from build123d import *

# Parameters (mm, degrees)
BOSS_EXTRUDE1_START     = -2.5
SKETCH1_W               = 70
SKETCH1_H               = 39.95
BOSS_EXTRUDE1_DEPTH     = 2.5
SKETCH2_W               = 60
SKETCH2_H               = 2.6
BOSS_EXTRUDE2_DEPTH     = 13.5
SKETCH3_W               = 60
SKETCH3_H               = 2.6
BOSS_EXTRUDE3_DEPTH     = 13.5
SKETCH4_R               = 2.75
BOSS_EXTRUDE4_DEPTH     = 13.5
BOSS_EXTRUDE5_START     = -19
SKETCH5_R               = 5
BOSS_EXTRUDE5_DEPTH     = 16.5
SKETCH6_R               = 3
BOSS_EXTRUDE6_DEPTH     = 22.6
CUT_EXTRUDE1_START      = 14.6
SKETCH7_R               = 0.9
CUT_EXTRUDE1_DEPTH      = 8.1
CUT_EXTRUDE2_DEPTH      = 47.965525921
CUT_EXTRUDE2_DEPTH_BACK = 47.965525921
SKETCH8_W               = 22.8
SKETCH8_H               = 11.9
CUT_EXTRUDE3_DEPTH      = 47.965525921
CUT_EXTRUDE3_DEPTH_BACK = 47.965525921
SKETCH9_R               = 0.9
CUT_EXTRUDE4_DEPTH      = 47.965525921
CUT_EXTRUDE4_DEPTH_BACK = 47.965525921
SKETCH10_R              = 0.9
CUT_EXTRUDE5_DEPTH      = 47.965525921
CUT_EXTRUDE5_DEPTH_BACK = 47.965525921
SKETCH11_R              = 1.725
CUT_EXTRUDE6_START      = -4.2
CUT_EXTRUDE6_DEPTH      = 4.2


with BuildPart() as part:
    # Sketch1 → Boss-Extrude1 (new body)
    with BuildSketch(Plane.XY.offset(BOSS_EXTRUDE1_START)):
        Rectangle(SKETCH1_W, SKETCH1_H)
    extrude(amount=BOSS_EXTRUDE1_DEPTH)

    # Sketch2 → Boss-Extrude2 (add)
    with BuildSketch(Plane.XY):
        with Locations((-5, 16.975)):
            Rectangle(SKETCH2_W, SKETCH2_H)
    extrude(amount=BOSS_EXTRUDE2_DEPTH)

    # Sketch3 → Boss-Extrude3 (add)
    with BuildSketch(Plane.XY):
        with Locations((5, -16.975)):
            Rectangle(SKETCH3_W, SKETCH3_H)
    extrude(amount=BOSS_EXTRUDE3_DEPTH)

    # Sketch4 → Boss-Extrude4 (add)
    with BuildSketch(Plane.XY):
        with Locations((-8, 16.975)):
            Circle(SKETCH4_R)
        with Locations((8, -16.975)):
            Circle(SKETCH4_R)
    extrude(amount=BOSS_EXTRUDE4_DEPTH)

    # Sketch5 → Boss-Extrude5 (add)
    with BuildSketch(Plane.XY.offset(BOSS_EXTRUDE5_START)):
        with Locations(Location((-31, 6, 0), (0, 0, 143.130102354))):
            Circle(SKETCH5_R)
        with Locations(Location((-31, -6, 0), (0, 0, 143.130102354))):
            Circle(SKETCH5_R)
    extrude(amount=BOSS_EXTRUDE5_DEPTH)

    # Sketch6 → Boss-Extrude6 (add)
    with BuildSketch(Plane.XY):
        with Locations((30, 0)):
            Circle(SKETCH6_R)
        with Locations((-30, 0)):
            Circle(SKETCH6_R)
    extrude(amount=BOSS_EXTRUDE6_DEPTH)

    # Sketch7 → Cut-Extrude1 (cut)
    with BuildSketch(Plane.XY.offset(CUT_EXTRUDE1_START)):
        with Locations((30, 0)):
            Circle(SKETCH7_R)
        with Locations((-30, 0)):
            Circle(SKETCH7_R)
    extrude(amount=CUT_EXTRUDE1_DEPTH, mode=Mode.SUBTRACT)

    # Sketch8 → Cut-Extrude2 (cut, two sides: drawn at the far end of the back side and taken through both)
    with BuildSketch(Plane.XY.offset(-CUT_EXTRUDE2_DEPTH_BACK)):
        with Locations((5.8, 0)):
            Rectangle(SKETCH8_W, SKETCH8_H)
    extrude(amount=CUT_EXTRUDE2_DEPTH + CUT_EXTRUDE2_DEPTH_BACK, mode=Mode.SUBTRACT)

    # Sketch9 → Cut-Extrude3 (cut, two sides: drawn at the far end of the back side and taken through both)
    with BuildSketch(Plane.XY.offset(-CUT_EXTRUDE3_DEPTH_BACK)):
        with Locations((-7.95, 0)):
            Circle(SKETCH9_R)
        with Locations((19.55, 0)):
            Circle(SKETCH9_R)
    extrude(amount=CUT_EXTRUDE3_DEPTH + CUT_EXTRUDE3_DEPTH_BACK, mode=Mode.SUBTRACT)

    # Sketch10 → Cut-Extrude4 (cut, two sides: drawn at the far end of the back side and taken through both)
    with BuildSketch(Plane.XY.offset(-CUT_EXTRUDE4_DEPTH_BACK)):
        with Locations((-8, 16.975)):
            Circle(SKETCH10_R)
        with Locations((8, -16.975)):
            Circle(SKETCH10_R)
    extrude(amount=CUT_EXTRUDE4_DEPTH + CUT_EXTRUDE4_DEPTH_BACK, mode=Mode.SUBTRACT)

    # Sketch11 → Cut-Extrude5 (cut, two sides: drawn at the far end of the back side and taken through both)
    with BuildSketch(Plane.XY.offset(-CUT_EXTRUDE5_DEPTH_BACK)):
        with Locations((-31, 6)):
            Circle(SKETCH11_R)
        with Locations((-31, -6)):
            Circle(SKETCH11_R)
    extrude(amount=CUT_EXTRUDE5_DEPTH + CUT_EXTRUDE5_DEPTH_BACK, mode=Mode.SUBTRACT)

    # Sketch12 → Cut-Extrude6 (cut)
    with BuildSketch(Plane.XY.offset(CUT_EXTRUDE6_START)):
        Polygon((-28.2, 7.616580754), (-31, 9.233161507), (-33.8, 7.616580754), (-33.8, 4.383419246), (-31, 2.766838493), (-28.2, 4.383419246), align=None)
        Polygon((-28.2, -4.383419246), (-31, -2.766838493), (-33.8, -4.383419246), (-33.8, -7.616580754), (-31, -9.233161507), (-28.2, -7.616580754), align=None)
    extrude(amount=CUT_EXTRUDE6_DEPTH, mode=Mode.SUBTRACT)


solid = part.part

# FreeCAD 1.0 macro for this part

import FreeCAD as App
import Part
import Sketcher
Q = App.Units.Quantity

doc = App.newDocument("Part")
params = doc.addObject("Spreadsheet::Sheet", "Params")
for row, (alias, value) in enumerate([
    ("sketch1_width", "70 mm"),
    ("sketch1_height", "39.95 mm"),
    ("pad1_length", "2.5 mm"),
    ("sketch2_width", "60 mm"),
    ("sketch2_height", "2.6 mm"),
    ("pad2_length", "13.5 mm"),
    ("sketch3_width", "60 mm"),
    ("sketch3_height", "2.6 mm"),
    ("pad3_length", "13.5 mm"),
    ("sketch4_diameter", "5.5 mm"),
    ("pad4_length", "13.5 mm"),
    ("sketch5_diameter", "10 mm"),
    ("pad5_length", "16.5 mm"),
    ("sketch6_diameter", "6 mm"),
    ("pad6_length", "22.6 mm"),
    ("sketch7_diameter", "1.8 mm"),
    ("pocket1_length", "8.1 mm"),
    ("sketch8_width", "22.8 mm"),
    ("sketch8_height", "11.9 mm"),
    ("sketch9_diameter", "1.8 mm"),
    ("sketch10_diameter", "1.8 mm"),
    ("sketch11_diameter", "3.45 mm"),
    ("pocket6_length", "4.2 mm"),
], start=1):
    params.set(f"A{row}", alias)
    params.set(f"B{row}", "=" + value)
    params.setAlias(f"B{row}", alias)

body = doc.addObject("PartDesign::Body", "Body")

# Sketch on XY plane
sketch1 = doc.addObject("Sketcher::SketchObject", "Sketch")
body.addObject(sketch1)
sketch1.AttachmentSupport = (doc.XY_Plane, [""])
sketch1.MapMode = "FlatFace"
sketch1.AttachmentOffset = App.Placement(App.Vector(0, 0, -2.5), App.Rotation())
sketch1.addGeometry([
    Part.LineSegment(App.Vector(-35, 20, 0), App.Vector(-35, -20, 0)),
    Part.LineSegment(App.Vector(-35, -20, 0), App.Vector(35, -20, 0)),
    Part.LineSegment(App.Vector(35, -20, 0), App.Vector(35, 20, 0)),
    Part.LineSegment(App.Vector(35, 20, 0), App.Vector(-35, 20, 0)),
], False)
sketch1.addConstraint([
    Sketcher.Constraint("Coincident", 0, 2, 1, 1),
    Sketcher.Constraint("Coincident", 1, 2, 2, 1),
    Sketcher.Constraint("Coincident", 2, 2, 3, 1),
    Sketcher.Constraint("Coincident", 3, 2, 0, 1),
    Sketcher.Constraint("Vertical", 0),
    Sketcher.Constraint("Horizontal", 1),
    Sketcher.Constraint("Vertical", 2),
    Sketcher.Constraint("Horizontal", 3),
    Sketcher.Constraint("Symmetric", 0, 2, 2, 2, -1, 1),
    Sketcher.Constraint("DistanceX", 1, 1, 1, 2, Q("70 mm")),
    Sketcher.Constraint("DistanceY", 0, 2, 0, 1, Q("39.95 mm")),
])
sketch1.setExpression("Constraints[9]", "Params.sketch1_width")
sketch1.setExpression("Constraints[10]", "Params.sketch1_height")
pad1 = doc.addObject("PartDesign::Pad", "Pad")
body.addObject(pad1)
pad1.Profile = sketch1
pad1.setExpression("Length", "Params.pad1_length")

# Sketch on XY plane
sketch2 = doc.addObject("Sketcher::SketchObject", "Sketch001")
body.addObject(sketch2)
sketch2.AttachmentSupport = (doc.XY_Plane, [""])
sketch2.MapMode = "FlatFace"
sketch2.addGeometry([
    Part.LineSegment(App.Vector(-35, 18.3, 0), App.Vector(-35, 15.7, 0)),
    Part.LineSegment(App.Vector(-35, 15.7, 0), App.Vector(25, 15.7, 0)),
    Part.LineSegment(App.Vector(25, 15.7, 0), App.Vector(25, 18.3, 0)),
    Part.LineSegment(App.Vector(25, 18.3, 0), App.Vector(-35, 18.3, 0)),
], False)
sketch2.addConstraint([
    Sketcher.Constraint("Coincident", 0, 2, 1, 1),
    Sketcher.Constraint("Coincident", 1, 2, 2, 1),
    Sketcher.Constraint("Coincident", 2, 2, 3, 1),
    Sketcher.Constraint("Coincident", 3, 2, 0, 1),
    Sketcher.Constraint("Vertical", 0),
    Sketcher.Constraint("Horizontal", 1),
    Sketcher.Constraint("Vertical", 2),
    Sketcher.Constraint("Horizontal", 3),
    Sketcher.Constraint("DistanceX", 1, 1, 1, 2, Q("60 mm")),
    Sketcher.Constraint("DistanceY", 0, 2, 0, 1, Q("2.6 mm")),
    Sketcher.Constraint("DistanceX", 0, 2, -1, 1, Q("35 mm")),
    Sketcher.Constraint("DistanceY", -1, 1, 0, 2, Q("15.675 mm")),
])
sketch2.setExpression("Constraints[8]", "Params.sketch2_width")
sketch2.setExpression("Constraints[9]", "Params.sketch2_height")
pad2 = doc.addObject("PartDesign::Pad", "Pad001")
body.addObject(pad2)
pad2.Profile = sketch2
pad2.setExpression("Length", "Params.pad2_length")

# Sketch on XY plane
sketch3 = doc.addObject("Sketcher::SketchObject", "Sketch002")
body.addObject(sketch3)
sketch3.AttachmentSupport = (doc.XY_Plane, [""])
sketch3.MapMode = "FlatFace"
sketch3.addGeometry([
    Part.LineSegment(App.Vector(-25, -15.7, 0), App.Vector(-25, -18.3, 0)),
    Part.LineSegment(App.Vector(-25, -18.3, 0), App.Vector(35, -18.3, 0)),
    Part.LineSegment(App.Vector(35, -18.3, 0), App.Vector(35, -15.7, 0)),
    Part.LineSegment(App.Vector(35, -15.7, 0), App.Vector(-25, -15.7, 0)),
], False)
sketch3.addConstraint([
    Sketcher.Constraint("Coincident", 0, 2, 1, 1),
    Sketcher.Constraint("Coincident", 1, 2, 2, 1),
    Sketcher.Constraint("Coincident", 2, 2, 3, 1),
    Sketcher.Constraint("Coincident", 3, 2, 0, 1),
    Sketcher.Constraint("Vertical", 0),
    Sketcher.Constraint("Horizontal", 1),
    Sketcher.Constraint("Vertical", 2),
    Sketcher.Constraint("Horizontal", 3),
    Sketcher.Constraint("DistanceX", 1, 1, 1, 2, Q("60 mm")),
    Sketcher.Constraint("DistanceY", 0, 2, 0, 1, Q("2.6 mm")),
    Sketcher.Constraint("DistanceX", 0, 2, -1, 1, Q("25 mm")),
    Sketcher.Constraint("DistanceY", 0, 2, -1, 1, Q("18.275 mm")),
])
sketch3.setExpression("Constraints[8]", "Params.sketch3_width")
sketch3.setExpression("Constraints[9]", "Params.sketch3_height")
pad3 = doc.addObject("PartDesign::Pad", "Pad002")
body.addObject(pad3)
pad3.Profile = sketch3
pad3.setExpression("Length", "Params.pad3_length")

# Sketch on XY plane
sketch4 = doc.addObject("Sketcher::SketchObject", "Sketch003")
body.addObject(sketch4)
sketch4.AttachmentSupport = (doc.XY_Plane, [""])
sketch4.MapMode = "FlatFace"
sketch4.addGeometry([
    Part.Circle(App.Vector(-8, 17, 0), App.Vector(0, 0, 1), 2.8),
    Part.Circle(App.Vector(8, -17, 0), App.Vector(0, 0, 1), 2.8),
], False)
sketch4.addConstraint([
    Sketcher.Constraint("Equal", 0, 1),
    Sketcher.Constraint("Symmetric", 0, 3, 1, 3, -1, 1),
    Sketcher.Constraint("Diameter", 0, Q("5.5 mm")),
    Sketcher.Constraint("DistanceX", 0, 3, -1, 1, Q("8 mm")),
    Sketcher.Constraint("DistanceY", 1, 3, 0, 3, Q("33.95 mm")),
])
sketch4.setExpression("Constraints[2]", "Params.sketch4_diameter")
pad4 = doc.addObject("PartDesign::Pad", "Pad003")
body.addObject(pad4)
pad4.Profile = sketch4
pad4.setExpression("Length", "Params.pad4_length")

# Sketch on XY plane
sketch5 = doc.addObject("Sketcher::SketchObject", "Sketch004")
body.addObject(sketch5)
sketch5.AttachmentSupport = (doc.XY_Plane, [""])
sketch5.MapMode = "FlatFace"
sketch5.AttachmentOffset = App.Placement(App.Vector(0, 0, -19), App.Rotation())
sketch5.addGeometry([
    Part.Circle(App.Vector(-31, 6, 0), App.Vector(0, 0, 1), 5),
    Part.Circle(App.Vector(-31, -6, 0), App.Vector(0, 0, 1), 5),
], False)
sketch5.addConstraint([
    Sketcher.Constraint("Equal", 0, 1),
    Sketcher.Constraint("Symmetric", 0, 3, 1, 3, -1),
    Sketcher.Constraint("Diameter", 0, Q("10 mm")),
    Sketcher.Constraint("DistanceX", 0, 3, -1, 1, Q("31 mm")),
    Sketcher.Constraint("DistanceY", -1, 1, 0, 3, Q("6 mm")),
])
sketch5.setExpression("Constraints[2]", "Params.sketch5_diameter")
pad5 = doc.addObject("PartDesign::Pad", "Pad004")
body.addObject(pad5)
pad5.Profile = sketch5
pad5.setExpression("Length", "Params.pad5_length")

# Sketch on XY plane
sketch6 = doc.addObject("Sketcher::SketchObject", "Sketch005")
body.addObject(sketch6)
sketch6.AttachmentSupport = (doc.XY_Plane, [""])
sketch6.MapMode = "FlatFace"
sketch6.addGeometry([
    Part.Circle(App.Vector(30, 0, 0), App.Vector(0, 0, 1), 3),
    Part.Circle(App.Vector(-30, 0, 0), App.Vector(0, 0, 1), 3),
], False)
sketch6.addConstraint([
    Sketcher.Constraint("Equal", 0, 1),
    Sketcher.Constraint("Symmetric", 0, 3, 1, 3, -1, 1),
    Sketcher.Constraint("PointOnObject", 0, 3, -1),
    Sketcher.Constraint("Diameter", 0, Q("6 mm")),
    Sketcher.Constraint("DistanceX", -1, 1, 0, 3, Q("30 mm")),
])
sketch6.setExpression("Constraints[3]", "Params.sketch6_diameter")
pad6 = doc.addObject("PartDesign::Pad", "Pad005")
body.addObject(pad6)
pad6.Profile = sketch6
pad6.setExpression("Length", "Params.pad6_length")

# Sketch on XY plane
sketch7 = doc.addObject("Sketcher::SketchObject", "Sketch006")
body.addObject(sketch7)
sketch7.AttachmentSupport = (doc.XY_Plane, [""])
sketch7.MapMode = "FlatFace"
sketch7.AttachmentOffset = App.Placement(App.Vector(0, 0, 14.6), App.Rotation())
sketch7.addGeometry([
    Part.Circle(App.Vector(30, 0, 0), App.Vector(0, 0, 1), 0.9),
    Part.Circle(App.Vector(-30, 0, 0), App.Vector(0, 0, 1), 0.9),
], False)
sketch7.addConstraint([
    Sketcher.Constraint("Equal", 0, 1),
    Sketcher.Constraint("Symmetric", 0, 3, 1, 3, -1, 1),
    Sketcher.Constraint("PointOnObject", 0, 3, -1),
    Sketcher.Constraint("Diameter", 0, Q("1.8 mm")),
    Sketcher.Constraint("DistanceX", -1, 1, 0, 3, Q("30 mm")),
])
sketch7.setExpression("Constraints[3]", "Params.sketch7_diameter")
pocket1 = doc.addObject("PartDesign::Pocket", "Pocket")
body.addObject(pocket1)
pocket1.Profile = sketch7
pocket1.setExpression("Length", "Params.pocket1_length")
pocket1.Reversed = True

# Sketch on XY plane
sketch8 = doc.addObject("Sketcher::SketchObject", "Sketch007")
body.addObject(sketch8)
sketch8.AttachmentSupport = (doc.XY_Plane, [""])
sketch8.MapMode = "FlatFace"
sketch8.addGeometry([
    Part.LineSegment(App.Vector(-6, 6, 0), App.Vector(-6, -6, 0)),
    Part.LineSegment(App.Vector(-6, -6, 0), App.Vector(17, -6, 0)),
    Part.LineSegment(App.Vector(17, -6, 0), App.Vector(17, 6, 0)),
    Part.LineSegment(App.Vector(17, 6, 0), App.Vector(-6, 6, 0)),
], False)
sketch8.addConstraint([
    Sketcher.Constraint("Coincident", 0, 2, 1, 1),
    Sketcher.Constraint("Coincident", 1, 2, 2, 1),
    Sketcher.Constraint("Coincident", 2, 2, 3, 1),
    Sketcher.Constraint("Coincident", 3, 2, 0, 1),
    Sketcher.Constraint("Vertical", 0),
    Sketcher.Constraint("Horizontal", 1),
    Sketcher.Constraint("Vertical", 2),
    Sketcher.Constraint("Horizontal", 3),
    Sketcher.Constraint("DistanceX", 1, 1, 1, 2, Q("22.8 mm")),
    Sketcher.Constraint("DistanceY", 0, 2, 0, 1, Q("11.9 mm")),
    Sketcher.Constraint("DistanceX", 0, 2, -1, 1, Q("5.6 mm")),
    Sketcher.Constraint("DistanceY", 0, 2, -1, 1, Q("5.95 mm")),
])
sketch8.setExpression("Constraints[8]", "Params.sketch8_width")
sketch8.setExpression("Constraints[9]", "Params.sketch8_height")
pocket2 = doc.addObject("PartDesign::Pocket", "Pocket001")
body.addObject(pocket2)
pocket2.Profile = sketch8
pocket2.Type = "ThroughAll"
pocket2.Midplane = True

# Sketch on XY plane
sketch9 = doc.addObject("Sketcher::SketchObject", "Sketch008")
body.addObject(sketch9)
sketch9.AttachmentSupport = (doc.XY_Plane, [""])
sketch9.MapMode = "FlatFace"
sketch9.addGeometry([
    Part.Circle(App.Vector(-8, 0, 0), App.Vector(0, 0, 1), 0.9),
    Part.Circle(App.Vector(19.6, 0, 0), App.Vector(0, 0, 1), 0.9),
], False)
sketch9.addConstraint([
    Sketcher.Constraint("Equal", 0, 1),
    Sketcher.Constraint("PointOnObject", 0, 3, -1),
    Sketcher.Constraint("PointOnObject", 1, 3, -1),
    Sketcher.Constraint("Diameter", 0, Q("1.8 mm")),
    Sketcher.Constraint("DistanceX", 0, 3, 1, 3, Q("27.5 mm")),
    Sketcher.Constraint("DistanceX", 0, 3, -1, 1, Q("7.95 mm")),
])
sketch9.setExpression("Constraints[3]", "Params.sketch9_diameter")
pocket3 = doc.addObject("PartDesign::Pocket", "Pocket002")
body.addObject(pocket3)
pocket3.Profile = sketch9
pocket3.Type = "ThroughAll"
pocket3.Midplane = True

# Sketch on XY plane
sketch10 = doc.addObject("Sketcher::SketchObject", "Sketch009")
body.addObject(sketch10)
sketch10.AttachmentSupport = (doc.XY_Plane, [""])
sketch10.MapMode = "FlatFace"
sketch10.addGeometry([
    Part.Circle(App.Vector(-8, 17, 0), App.Vector(0, 0, 1), 0.9),
    Part.Circle(App.Vector(8, -17, 0), App.Vector(0, 0, 1), 0.9),
], False)
sketch10.addConstraint([
    Sketcher.Constraint("Equal", 0, 1),
    Sketcher.Constraint("Symmetric", 0, 3, 1, 3, -1, 1),
    Sketcher.Constraint("Diameter", 0, Q("1.8 mm")),
    Sketcher.Constraint("DistanceX", 0, 3, -1, 1, Q("8 mm")),
    Sketcher.Constraint("DistanceY", 1, 3, 0, 3, Q("33.95 mm")),
])
sketch10.setExpression("Constraints[2]", "Params.sketch10_diameter")
pocket4 = doc.addObject("PartDesign::Pocket", "Pocket003")
body.addObject(pocket4)
pocket4.Profile = sketch10
pocket4.Type = "ThroughAll"
pocket4.Midplane = True

# Sketch on XY plane
sketch11 = doc.addObject("Sketcher::SketchObject", "Sketch010")
body.addObject(sketch11)
sketch11.AttachmentSupport = (doc.XY_Plane, [""])
sketch11.MapMode = "FlatFace"
sketch11.addGeometry([
    Part.Circle(App.Vector(-31, 6, 0), App.Vector(0, 0, 1), 1.7),
    Part.Circle(App.Vector(-31, -6, 0), App.Vector(0, 0, 1), 1.7),
], False)
sketch11.addConstraint([
    Sketcher.Constraint("Equal", 0, 1),
    Sketcher.Constraint("Symmetric", 0, 3, 1, 3, -1),
    Sketcher.Constraint("Diameter", 0, Q("3.45 mm")),
    Sketcher.Constraint("DistanceX", 0, 3, -1, 1, Q("31 mm")),
    Sketcher.Constraint("DistanceY", -1, 1, 0, 3, Q("6 mm")),
])
sketch11.setExpression("Constraints[2]", "Params.sketch11_diameter")
pocket5 = doc.addObject("PartDesign::Pocket", "Pocket004")
body.addObject(pocket5)
pocket5.Profile = sketch11
pocket5.Type = "ThroughAll"
pocket5.Midplane = True

# Sketch on XY plane
sketch12 = doc.addObject("Sketcher::SketchObject", "Sketch011")
body.addObject(sketch12)
sketch12.AttachmentSupport = (doc.XY_Plane, [""])
sketch12.MapMode = "FlatFace"
sketch12.AttachmentOffset = App.Placement(App.Vector(0, 0, -4.2), App.Rotation())
sketch12.addGeometry([
    Part.LineSegment(App.Vector(-28.2, 7.6, 0), App.Vector(-31, 9.2, 0)),  # 0
    Part.LineSegment(App.Vector(-31, 9.2, 0), App.Vector(-33.8, 7.6, 0)),  # 1
    Part.LineSegment(App.Vector(-33.8, 7.6, 0), App.Vector(-33.8, 4.4, 0)),  # 2
    Part.LineSegment(App.Vector(-33.8, 4.4, 0), App.Vector(-31, 2.8, 0)),  # 3
    Part.LineSegment(App.Vector(-31, 2.8, 0), App.Vector(-28.2, 4.4, 0)),  # 4
    Part.LineSegment(App.Vector(-28.2, 4.4, 0), App.Vector(-28.2, 7.6, 0)),  # 5
    Part.LineSegment(App.Vector(-28.2, -4.4, 0), App.Vector(-31, -2.8, 0)),  # 6
    Part.LineSegment(App.Vector(-31, -2.8, 0), App.Vector(-33.8, -4.4, 0)),  # 7
    Part.LineSegment(App.Vector(-33.8, -4.4, 0), App.Vector(-33.8, -7.6, 0)),  # 8
    Part.LineSegment(App.Vector(-33.8, -7.6, 0), App.Vector(-31, -9.2, 0)),  # 9
    Part.LineSegment(App.Vector(-31, -9.2, 0), App.Vector(-28.2, -7.6, 0)),  # 10
    Part.LineSegment(App.Vector(-28.2, -7.6, 0), App.Vector(-28.2, -4.4, 0)),  # 11
], False)
sketch12.addConstraint([
    Sketcher.Constraint("Coincident", 0, 2, 1, 1),
    Sketcher.Constraint("Coincident", 1, 2, 2, 1),
    Sketcher.Constraint("Coincident", 2, 2, 3, 1),
    Sketcher.Constraint("Coincident", 3, 2, 4, 1),
    Sketcher.Constraint("Coincident", 4, 2, 5, 1),
    Sketcher.Constraint("Coincident", 5, 2, 0, 1),
    Sketcher.Constraint("Coincident", 6, 2, 7, 1),
    Sketcher.Constraint("Coincident", 7, 2, 8, 1),
    Sketcher.Constraint("Coincident", 8, 2, 9, 1),
    Sketcher.Constraint("Coincident", 9, 2, 10, 1),
    Sketcher.Constraint("Coincident", 10, 2, 11, 1),
    Sketcher.Constraint("Coincident", 11, 2, 6, 1),
    Sketcher.Constraint("Vertical", 2),
    Sketcher.Constraint("Vertical", 5),
    Sketcher.Constraint("Vertical", 8),
    Sketcher.Constraint("Vertical", 11),
    Sketcher.Constraint("Symmetric", 3, 2, 6, 2, -1),
    Sketcher.Constraint("Symmetric", 2, 2, 7, 2, -1),
    Sketcher.Constraint("Symmetric", 0, 2, 9, 2, -1),
    Sketcher.Constraint("Symmetric", 5, 2, 10, 2, -1),
    Sketcher.Constraint("Parallel", 0, 3),
    Sketcher.Constraint("Parallel", 1, 4),
    Sketcher.Constraint("Parallel", 3, 6),
    Sketcher.Constraint("Parallel", 4, 7),
    Sketcher.Constraint("Parallel", 6, 9),
    Sketcher.Constraint("Horizontal", 2, 2, 4, 2),
    Sketcher.Constraint("Horizontal", 1, 2, 5, 2),
    Sketcher.Constraint("Angle", 0, Q("150 deg")),
    Sketcher.Constraint("DistanceX", 0, 2, -1, 1, Q("31 mm")),
    Sketcher.Constraint("DistanceY", 7, 2, 1, 2, Q("12 mm")),
    Sketcher.Constraint("DistanceX", 1, 2, -1, 1, Q("33.8 mm")),
    Sketcher.Constraint("DistanceY", 2, 2, 2, 1, Q("3.233162 mm")),
])
pocket6 = doc.addObject("PartDesign::Pocket", "Pocket005")
body.addObject(pocket6)
pocket6.Profile = sketch12
pocket6.setExpression("Length", "Params.pocket6_length")
pocket6.Reversed = True

doc.recompute()
